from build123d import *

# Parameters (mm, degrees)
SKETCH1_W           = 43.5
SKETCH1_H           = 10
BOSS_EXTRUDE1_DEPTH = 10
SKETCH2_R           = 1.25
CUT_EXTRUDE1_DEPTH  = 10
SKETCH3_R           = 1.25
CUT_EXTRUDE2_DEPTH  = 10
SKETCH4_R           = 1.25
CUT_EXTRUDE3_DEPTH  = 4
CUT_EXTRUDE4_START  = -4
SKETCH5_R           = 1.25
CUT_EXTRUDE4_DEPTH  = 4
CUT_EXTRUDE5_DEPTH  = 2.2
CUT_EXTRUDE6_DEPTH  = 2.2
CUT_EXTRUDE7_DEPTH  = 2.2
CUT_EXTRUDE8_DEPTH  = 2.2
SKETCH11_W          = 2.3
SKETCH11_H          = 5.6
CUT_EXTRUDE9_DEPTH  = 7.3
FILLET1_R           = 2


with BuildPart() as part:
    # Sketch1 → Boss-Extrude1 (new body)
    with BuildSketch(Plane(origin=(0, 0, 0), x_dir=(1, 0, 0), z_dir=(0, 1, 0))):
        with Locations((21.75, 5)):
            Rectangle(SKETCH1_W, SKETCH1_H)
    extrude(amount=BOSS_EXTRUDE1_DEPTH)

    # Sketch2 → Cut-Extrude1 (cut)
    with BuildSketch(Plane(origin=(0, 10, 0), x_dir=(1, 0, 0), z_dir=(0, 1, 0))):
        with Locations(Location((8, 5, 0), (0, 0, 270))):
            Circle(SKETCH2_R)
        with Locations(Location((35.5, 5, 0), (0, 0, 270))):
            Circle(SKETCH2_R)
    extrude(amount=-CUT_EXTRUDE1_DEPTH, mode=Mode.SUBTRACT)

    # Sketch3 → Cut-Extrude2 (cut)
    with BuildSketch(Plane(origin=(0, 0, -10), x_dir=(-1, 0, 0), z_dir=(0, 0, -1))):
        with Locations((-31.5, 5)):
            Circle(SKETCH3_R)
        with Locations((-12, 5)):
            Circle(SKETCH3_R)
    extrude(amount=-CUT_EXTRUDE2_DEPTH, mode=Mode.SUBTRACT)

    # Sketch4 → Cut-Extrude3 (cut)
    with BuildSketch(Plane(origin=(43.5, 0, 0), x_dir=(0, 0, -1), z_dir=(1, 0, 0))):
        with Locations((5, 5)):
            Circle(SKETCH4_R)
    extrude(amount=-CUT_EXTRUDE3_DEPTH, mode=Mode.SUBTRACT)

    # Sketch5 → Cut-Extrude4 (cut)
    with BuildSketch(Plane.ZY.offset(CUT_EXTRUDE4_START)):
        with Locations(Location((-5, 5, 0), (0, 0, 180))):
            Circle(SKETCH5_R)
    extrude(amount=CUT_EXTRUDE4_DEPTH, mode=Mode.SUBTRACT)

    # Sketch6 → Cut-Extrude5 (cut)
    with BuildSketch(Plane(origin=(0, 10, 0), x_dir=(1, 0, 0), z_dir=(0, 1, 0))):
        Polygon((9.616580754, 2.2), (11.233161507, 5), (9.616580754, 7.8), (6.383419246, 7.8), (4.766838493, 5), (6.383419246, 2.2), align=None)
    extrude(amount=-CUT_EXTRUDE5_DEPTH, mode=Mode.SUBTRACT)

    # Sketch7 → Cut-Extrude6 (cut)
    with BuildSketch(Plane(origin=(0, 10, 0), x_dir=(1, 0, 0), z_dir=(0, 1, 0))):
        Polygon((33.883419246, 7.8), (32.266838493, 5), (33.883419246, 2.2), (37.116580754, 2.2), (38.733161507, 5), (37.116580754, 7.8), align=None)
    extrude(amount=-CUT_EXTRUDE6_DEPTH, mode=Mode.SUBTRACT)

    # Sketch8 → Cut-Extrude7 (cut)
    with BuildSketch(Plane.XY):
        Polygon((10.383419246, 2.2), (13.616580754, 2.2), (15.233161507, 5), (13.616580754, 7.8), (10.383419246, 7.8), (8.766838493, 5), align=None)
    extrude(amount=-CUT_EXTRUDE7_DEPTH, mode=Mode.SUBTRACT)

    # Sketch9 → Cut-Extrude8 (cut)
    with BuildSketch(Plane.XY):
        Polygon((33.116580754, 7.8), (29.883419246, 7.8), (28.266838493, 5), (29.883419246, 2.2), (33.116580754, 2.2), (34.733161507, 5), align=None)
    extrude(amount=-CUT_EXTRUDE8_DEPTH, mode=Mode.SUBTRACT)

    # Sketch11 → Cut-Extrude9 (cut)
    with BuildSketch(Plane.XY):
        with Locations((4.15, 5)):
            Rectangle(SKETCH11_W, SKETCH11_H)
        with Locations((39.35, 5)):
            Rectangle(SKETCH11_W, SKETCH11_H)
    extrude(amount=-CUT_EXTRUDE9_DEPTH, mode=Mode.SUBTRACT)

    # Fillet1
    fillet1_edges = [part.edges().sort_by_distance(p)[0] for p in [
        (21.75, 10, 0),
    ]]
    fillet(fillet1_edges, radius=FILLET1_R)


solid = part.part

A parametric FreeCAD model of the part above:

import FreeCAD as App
import Part
import Sketcher
from FreeCAD import Vector
Q = App.Units.Quantity


def edges_at(feature, points):
    """Names of the edges that pass closest to the given points."""
    edges = feature.Shape.Edges
    near = lambda p: min(range(len(edges)), key=lambda i: edges[i].distToShape(Part.Vertex(*p))[0])
    return sorted({f"Edge{near(p) + 1}" for p in points})

doc = App.newDocument("Part")
body = doc.addObject("PartDesign::Body", "Body")

# Sketch on XZ plane
sketch1 = body.newObject("Sketcher::SketchObject", "Sketch")
sketch1.AttachmentSupport = (doc.getObject("XZ_Plane"), [""])
sketch1.MapMode = "FlatFace"
sketch1.addGeometry(Part.LineSegment(Vector(0, -10, 0), Vector(0, 0, 0)), False)
sketch1.addGeometry(Part.LineSegment(Vector(0, 0, 0), Vector(44, 0, 0)), False)
sketch1.addGeometry(Part.LineSegment(Vector(44, 0, 0), Vector(44, -10, 0)), False)
sketch1.addGeometry(Part.LineSegment(Vector(44, -10, 0), Vector(0, -10, 0)), False)
sketch1.addConstraint(Sketcher.Constraint("Coincident", 0, 2, 1, 1))
sketch1.addConstraint(Sketcher.Constraint("Coincident", 1, 2, 2, 1))
sketch1.addConstraint(Sketcher.Constraint("Coincident", 2, 2, 3, 1))
sketch1.addConstraint(Sketcher.Constraint("Coincident", 3, 2, 0, 1))
sketch1.addConstraint(Sketcher.Constraint("Vertical", 0))
sketch1.addConstraint(Sketcher.Constraint("Horizontal", 1))
sketch1.addConstraint(Sketcher.Constraint("Vertical", 2))
sketch1.addConstraint(Sketcher.Constraint("Horizontal", 3))
sketch1.addConstraint(Sketcher.Constraint("Coincident", 0, 2, -1, 1))
sketch1.addConstraint(Sketcher.Constraint("DistanceY", 0, 1, 0, 2, 10.0))
sketch1.addConstraint(Sketcher.Constraint("DistanceX", 1, 1, 1, 2, 43.5))
pad1 = body.newObject("PartDesign::Pad", "Pad")
pad1.Profile = sketch1
pad1.Length = 10
pad1.Reversed = True

# Sketch on XZ plane
sketch2 = body.newObject("Sketcher::SketchObject", "Sketch001")
sketch2.AttachmentSupport = (doc.getObject("XZ_Plane"), [""])
sketch2.MapMode = "FlatFace"
sketch2.AttachmentOffset = App.Placement(Vector(0, 0, -10), App.Rotation())
sketch2.addGeometry(Part.Circle(Vector(8, -5, 0), Vector(0, 0, 1), 1.2), False)
sketch2.addGeometry(Part.Circle(Vector(35.5, -5, 0), Vector(0, 0, 1), 1.2), False)
sketch2.addConstraint(Sketcher.Constraint("Equal", 0, 1))
sketch2.addConstraint(Sketcher.Constraint("Horizontal", 0, 3, 1, 3))
sketch2.addConstraint(Sketcher.Constraint("Diameter", 0, 2.5))
sketch2.addConstraint(Sketcher.Constraint("DistanceX", -1, 1, 0, 3, 8.0))
sketch2.addConstraint(Sketcher.Constraint("DistanceY", 0, 3, -1, 1, 5.0))
sketch2.addConstraint(Sketcher.Constraint("DistanceX", -1, 1, 1, 3, 35.5))
pocket1 = body.newObject("PartDesign::Pocket", "Pocket")
pocket1.Profile = sketch2
pocket1.Length = 10
pocket1.Reversed = True

# Sketch on XY plane
sketch3 = body.newObject("Sketcher::SketchObject", "Sketch002")
sketch3.AttachmentSupport = (doc.getObject("XY_Plane"), [""])
sketch3.MapMode = "FlatFace"
sketch3.AttachmentOffset = App.Placement(Vector(0, 0, -10), App.Rotation())
sketch3.addGeometry(Part.Circle(Vector(31.5, 5, 0), Vector(0, 0, 1), 1.2), False)
sketch3.addGeometry(Part.Circle(Vector(12, 5, 0), Vector(0, 0, 1), 1.2), False)
sketch3.addConstraint(Sketcher.Constraint("Equal", 0, 1))
sketch3.addConstraint(Sketcher.Constraint("Horizontal", 0, 3, 1, 3))
sketch3.addConstraint(Sketcher.Constraint("Diameter", 0, 2.5))
sketch3.addConstraint(Sketcher.Constraint("DistanceY", -1, 1, 0, 3, 5.0))
sketch3.addConstraint(Sketcher.Constraint("DistanceX", -1, 1, 1, 3, 12.0))
sketch3.addConstraint(Sketcher.Constraint("DistanceX", -1, 1, 0, 3, 31.5))
pocket2 = body.newObject("PartDesign::Pocket", "Pocket001")
pocket2.Profile = sketch3
pocket2.Length = 10
pocket2.Reversed = True

# Sketch on YZ plane
sketch4 = body.newObject("Sketcher::SketchObject", "Sketch003")
sketch4.AttachmentSupport = (doc.getObject("YZ_Plane"), [""])
sketch4.MapMode = "FlatFace"
sketch4.AttachmentOffset = App.Placement(Vector(0, 0, 43.5), App.Rotation())
sketch4.addGeometry(Part.Circle(Vector(5, -5, 0), Vector(0, 0, 1), 1.2), False)
sketch4.addConstraint(Sketcher.Constraint("Diameter", 0, 2.5))
sketch4.addConstraint(Sketcher.Constraint("DistanceX", -1, 1, 0, 3, 5.0))
sketch4.addConstraint(Sketcher.Constraint("DistanceY", 0, 3, -1, 1, 5.0))
pocket3 = body.newObject("PartDesign::Pocket", "Pocket002")
pocket3.Profile = sketch4
pocket3.Length = 4

# Sketch on YZ plane
sketch5 = body.newObject("Sketcher::SketchObject", "Sketch004")
sketch5.AttachmentSupport = (doc.getObject("YZ_Plane"), [""])
sketch5.MapMode = "FlatFace"
sketch5.AttachmentOffset = App.Placement(Vector(0, 0, 4), App.Rotation())
sketch5.addGeometry(Part.Circle(Vector(5, -5, 0), Vector(0, 0, 1), 1.2), False)
sketch5.addConstraint(Sketcher.Constraint("Diameter", 0, 2.5))
sketch5.addConstraint(Sketcher.Constraint("DistanceX", -1, 1, 0, 3, 5.0))
sketch5.addConstraint(Sketcher.Constraint("DistanceY", 0, 3, -1, 1, 5.0))
pocket4 = body.newObject("PartDesign::Pocket", "Pocket003")
pocket4.Profile = sketch5
pocket4.Length = 4

# Sketch on XZ plane
sketch6 = body.newObject("Sketcher::SketchObject", "Sketch005")
sketch6.AttachmentSupport = (doc.getObject("XZ_Plane"), [""])
sketch6.MapMode = "FlatFace"
sketch6.AttachmentOffset = App.Placement(Vector(0, 0, -10), App.Rotation())
sketch6.addGeometry(Part.LineSegment(Vector(9.6, -2.2, 0), Vector(11.2, -5, 0)), False)
sketch6.addGeometry(Part.LineSegment(Vector(11.2, -5, 0), Vector(9.6, -7.8, 0)), False)
sketch6.addGeometry(Part.LineSegment(Vector(9.6, -7.8, 0), Vector(6.4, -7.8, 0)), False)
sketch6.addGeometry(Part.LineSegment(Vector(6.4, -7.8, 0), Vector(4.8, -5, 0)), False)
sketch6.addGeometry(Part.LineSegment(Vector(4.8, -5, 0), Vector(6.4, -2.2, 0)), False)
sketch6.addGeometry(Part.LineSegment(Vector(6.4, -2.2, 0), Vector(9.6, -2.2, 0)), False)
sketch6.addConstraint(Sketcher.Constraint("Coincident", 0, 2, 1, 1))
sketch6.addConstraint(Sketcher.Constraint("Coincident", 1, 2, 2, 1))
sketch6.addConstraint(Sketcher.Constraint("Coincident", 2, 2, 3, 1))
sketch6.addConstraint(Sketcher.Constraint("Coincident", 3, 2, 4, 1))
sketch6.addConstraint(Sketcher.Constraint("Coincident", 4, 2, 5, 1))
sketch6.addConstraint(Sketcher.Constraint("Coincident", 5, 2, 0, 1))
sketch6.addConstraint(Sketcher.Constraint("Horizontal", 2))
sketch6.addConstraint(Sketcher.Constraint("Horizontal", 5))
sketch6.addConstraint(Sketcher.Constraint("Parallel", 0, 3))
sketch6.addConstraint(Sketcher.Constraint("Parallel", 1, 4))
sketch6.addConstraint(Sketcher.Constraint("Horizontal", 0, 2, 3, 2))
sketch6.addConstraint(Sketcher.Constraint("Vertical", 2, 2, 4, 2))
sketch6.addConstraint(Sketcher.Constraint("Vertical", 1, 2, 5, 2))
sketch6.addConstraint(Sketcher.Constraint("Angle", 0, Q("-60 deg")))
sketch6.addConstraint(Sketcher.Constraint("DistanceY", 0, 2, -1, 1, 5.0))
sketch6.addConstraint(Sketcher.Constraint("DistanceY", 1, 2, -1, 1, 7.8))
sketch6.addConstraint(Sketcher.Constraint("DistanceX", 2, 2, 2, 1, 3.233162))
sketch6.addConstraint(Sketcher.Constraint("DistanceX", -1, 1, 0, 2, 11.233162))
pocket5 = body.newObject("PartDesign::Pocket", "Pocket004")
pocket5.Profile = sketch6
pocket5.Length = 2.2
pocket5.Reversed = True

# Sketch on XZ plane
sketch7 = body.newObject("Sketcher::SketchObject", "Sketch006")
sketch7.AttachmentSupport = (doc.getObject("XZ_Plane"), [""])
sketch7.MapMode = "FlatFace"
sketch7.AttachmentOffset = App.Placement(Vector(0, 0, -10), App.Rotation())
sketch7.addGeometry(Part.LineSegment(Vector(33.9, -7.8, 0), Vector(32.3, -5, 0)), False)
sketch7.addGeometry(Part.LineSegment(Vector(32.3, -5, 0), Vector(33.9, -2.2, 0)), False)
sketch7.addGeometry(Part.LineSegment(Vector(33.9, -2.2, 0), Vector(37.1, -2.2, 0)), False)
sketch7.addGeometry(Part.LineSegment(Vector(37.1, -2.2, 0), Vector(38.7, -5, 0)), False)
sketch7.addGeometry(Part.LineSegment(Vector(38.7, -5, 0), Vector(37.1, -7.8, 0)), False)
sketch7.addGeometry(Part.LineSegment(Vector(37.1, -7.8, 0), Vector(33.9, -7.8, 0)), False)
sketch7.addConstraint(Sketcher.Constraint("Coincident", 0, 2, 1, 1))
sketch7.addConstraint(Sketcher.Constraint("Coincident", 1, 2, 2, 1))
sketch7.addConstraint(Sketcher.Constraint("Coincident", 2, 2, 3, 1))
sketch7.addConstraint(Sketcher.Constraint("Coincident", 3, 2, 4, 1))
sketch7.addConstraint(Sketcher.Constraint("Coincident", 4, 2, 5, 1))
sketch7.addConstraint(Sketcher.Constraint("Coincident", 5, 2, 0, 1))
sketch7.addConstraint(Sketcher.Constraint("Horizontal", 2))
sketch7.addConstraint(Sketcher.Constraint("Horizontal", 5))
sketch7.addConstraint(Sketcher.Constraint("Parallel", 0, 3))
sketch7.addConstraint(Sketcher.Constraint("Parallel", 1, 4))
sketch7.addConstraint(Sketcher.Constraint("Horizontal", 0, 2, 3, 2))
sketch7.addConstraint(Sketcher.Constraint("Vertical", 2, 2, 4, 2))
sketch7.addConstraint(Sketcher.Constraint("Vertical", 1, 2, 5, 2))
sketch7.addConstraint(Sketcher.Constraint("Angle", 0, Q("120 deg")))
sketch7.addConstraint(Sketcher.Constraint("DistanceY", 0, 2, -1, 1, 5.0))
sketch7.addConstraint(Sketcher.Constraint("DistanceY", 1, 2, -1, 1, 2.2))
sketch7.addConstraint(Sketcher.Constraint("DistanceX", 2, 1, 2, 2, 3.233162))
sketch7.addConstraint(Sketcher.Constraint("DistanceX", -1, 1, 0, 2, 32.266838))
pocket6 = body.newObject("PartDesign::Pocket", "Pocket005")
pocket6.Profile = sketch7
pocket6.Length = 2.2
pocket6.Reversed = True

# Sketch on XY plane
sketch8 = body.newObject("Sketcher::SketchObject", "Sketch007")
sketch8.AttachmentSupport = (doc.getObject("XY_Plane"), [""])
sketch8.MapMode = "FlatFace"
sketch8.addGeometry(Part.LineSegment(Vector(10.4, 2.2, 0), Vector(13.6, 2.2, 0)), False)
sketch8.addGeometry(Part.LineSegment(Vector(13.6, 2.2, 0), Vector(15.2, 5, 0)), False)
sketch8.addGeometry(Part.LineSegment(Vector(15.2, 5, 0), Vector(13.6, 7.8, 0)), False)
sketch8.addGeometry(Part.LineSegment(Vector(13.6, 7.8, 0), Vector(10.4, 7.8, 0)), False)
sketch8.addGeometry(Part.LineSegment(Vector(10.4, 7.8, 0), Vector(8.8, 5, 0)), False)
sketch8.addGeometry(Part.LineSegment(Vector(8.8, 5, 0), Vector(10.4, 2.2, 0)), False)
sketch8.addConstraint(Sketcher.Constraint("Coincident", 0, 2, 1, 1))
sketch8.addConstraint(Sketcher.Constraint("Coincident", 1, 2, 2, 1))
sketch8.addConstraint(Sketcher.Constraint("Coincident", 2, 2, 3, 1))
sketch8.addConstraint(Sketcher.Constraint("Coincident", 3, 2, 4, 1))
sketch8.addConstraint(Sketcher.Constraint("Coincident", 4, 2, 5, 1))
sketch8.addConstraint(Sketcher.Constraint("Coincident", 5, 2, 0, 1))
sketch8.addConstraint(Sketcher.Constraint("Horizontal", 0))
sketch8.addConstraint(Sketcher.Constraint("Horizontal", 3))
sketch8.addConstraint(Sketcher.Constraint("Parallel", 1, 4))
sketch8.addConstraint(Sketcher.Constraint("Parallel", 2, 5))
sketch8.addConstraint(Sketcher.Constraint("Horizontal", 1, 2, 4, 2))
sketch8.addConstraint(Sketcher.Constraint("Vertical", 0, 2, 2, 2))
sketch8.addConstraint(Sketcher.Constraint("Vertical", 3, 2, 5, 2))
sketch8.addConstraint(Sketcher.Constraint("Angle", 1, Q("60 deg")))
sketch8.addConstraint(Sketcher.Constraint("DistanceY", -1, 1, 1, 2, 5.0))
sketch8.addConstraint(Sketcher.Constraint("DistanceY", -1, 1, 0, 2, 2.2))
sketch8.addConstraint(Sketcher.Constraint("DistanceX", 0, 1, 0, 2, 3.233162))
sketch8.addConstraint(Sketcher.Constraint("DistanceX", -1, 1, 0, 2, 13.616581))
pocket7 = body.newObject("PartDesign::Pocket", "Pocket006")
pocket7.Profile = sketch8
pocket7.Length = 2.2

# Sketch on XY plane
sketch9 = body.newObject("Sketcher::SketchObject", "Sketch008")
sketch9.AttachmentSupport = (doc.getObject("XY_Plane"), [""])
sketch9.MapMode = "FlatFace"
sketch9.addGeometry(Part.LineSegment(Vector(33.1, 7.8, 0), Vector(29.9, 7.8, 0)), False)
sketch9.addGeometry(Part.LineSegment(Vector(29.9, 7.8, 0), Vector(28.3, 5, 0)), False)
sketch9.addGeometry(Part.LineSegment(Vector(28.3, 5, 0), Vector(29.9, 2.2, 0)), False)
sketch9.addGeometry(Part.LineSegment(Vector(29.9, 2.2, 0), Vector(33.1, 2.2, 0)), False)
sketch9.addGeometry(Part.LineSegment(Vector(33.1, 2.2, 0), Vector(34.7, 5, 0)), False)
sketch9.addGeometry(Part.LineSegment(Vector(34.7, 5, 0), Vector(33.1, 7.8, 0)), False)
sketch9.addConstraint(Sketcher.Constraint("Coincident", 0, 2, 1, 1))
sketch9.addConstraint(Sketcher.Constraint("Coincident", 1, 2, 2, 1))
sketch9.addConstraint(Sketcher.Constraint("Coincident", 2, 2, 3, 1))
sketch9.addConstraint(Sketcher.Constraint("Coincident", 3, 2, 4, 1))
sketch9.addConstraint(Sketcher.Constraint("Coincident", 4, 2, 5, 1))
sketch9.addConstraint(Sketcher.Constraint("Coincident", 5, 2, 0, 1))
sketch9.addConstraint(Sketcher.Constraint("Horizontal", 0))
sketch9.addConstraint(Sketcher.Constraint("Horizontal", 3))
sketch9.addConstraint(Sketcher.Constraint("Parallel", 1, 4))
sketch9.addConstraint(Sketcher.Constraint("Parallel", 2, 5))
sketch9.addConstraint(Sketcher.Constraint("Horizontal", 1, 2, 4, 2))
sketch9.addConstraint(Sketcher.Constraint("Vertical", 0, 2, 2, 2))
sketch9.addConstraint(Sketcher.Constraint("Vertical", 3, 2, 5, 2))
sketch9.addConstraint(Sketcher.Constraint("Angle", 1, Q("-120 deg")))
sketch9.addConstraint(Sketcher.Constraint("DistanceY", -1, 1, 1, 2, 5.0))
sketch9.addConstraint(Sketcher.Constraint("DistanceY", -1, 1, 0, 2, 7.8))
sketch9.addConstraint(Sketcher.Constraint("DistanceX", 0, 2, 0, 1, 3.233162))
sketch9.addConstraint(Sketcher.Constraint("DistanceX", -1, 1, 0, 2, 29.883419))
pocket8 = body.newObject("PartDesign::Pocket", "Pocket007")
pocket8.Profile = sketch9
pocket8.Length = 2.2

# Sketch on XY plane
sketch10 = body.newObject("Sketcher::SketchObject", "Sketch009")
sketch10.AttachmentSupport = (doc.getObject("XY_Plane"), [""])
sketch10.MapMode = "FlatFace"
sketch10.addGeometry(Part.LineSegment(Vector(3, 7.8, 0), Vector(3, 2.2, 0)), False)
sketch10.addGeometry(Part.LineSegment(Vector(3, 2.2, 0), Vector(5.3, 2.2, 0)), False)
sketch10.addGeometry(Part.LineSegment(Vector(5.3, 2.2, 0), Vector(5.3, 7.8, 0)), False)
sketch10.addGeometry(Part.LineSegment(Vector(5.3, 7.8, 0), Vector(3, 7.8, 0)), False)
sketch10.addGeometry(Part.LineSegment(Vector(38.2, 7.8, 0), Vector(38.2, 2.2, 0)), False)
sketch10.addGeometry(Part.LineSegment(Vector(38.2, 2.2, 0), Vector(40.5, 2.2, 0)), False)
sketch10.addGeometry(Part.LineSegment(Vector(40.5, 2.2, 0), Vector(40.5, 7.8, 0)), False)
sketch10.addGeometry(Part.LineSegment(Vector(40.5, 7.8, 0), Vector(38.2, 7.8, 0)), False)
sketch10.addConstraint(Sketcher.Constraint("Coincident", 0, 2, 1, 1))
sketch10.addConstraint(Sketcher.Constraint("Coincident", 1, 2, 2, 1))
sketch10.addConstraint(Sketcher.Constraint("Coincident", 2, 2, 3, 1))
sketch10.addConstraint(Sketcher.Constraint("Coincident", 3, 2, 0, 1))
sketch10.addConstraint(Sketcher.Constraint("Coincident", 4, 2, 5, 1))
sketch10.addConstraint(Sketcher.Constraint("Coincident", 5, 2, 6, 1))
sketch10.addConstraint(Sketcher.Constraint("Coincident", 6, 2, 7, 1))
sketch10.addConstraint(Sketcher.Constraint("Coincident", 7, 2, 4, 1))
sketch10.addConstraint(Sketcher.Constraint("Vertical", 0))
sketch10.addConstraint(Sketcher.Constraint("Horizontal", 1))
sketch10.addConstraint(Sketcher.Constraint("Vertical", 2))
sketch10.addConstraint(Sketcher.Constraint("Horizontal", 3))
sketch10.addConstraint(Sketcher.Constraint("Vertical", 4))
sketch10.addConstraint(Sketcher.Constraint("Horizontal", 5))
sketch10.addConstraint(Sketcher.Constraint("Vertical", 6))
sketch10.addConstraint(Sketcher.Constraint("Horizontal", 7))
sketch10.addConstraint(Sketcher.Constraint("Horizontal", 1, 2, 4, 2))
sketch10.addConstraint(Sketcher.Constraint("Horizontal", 3, 2, 6, 2))
sketch10.addConstraint(Sketcher.Constraint("Equal", 3, 5))
sketch10.addConstraint(Sketcher.Constraint("DistanceX", 1, 1, 1, 2, 2.3))
sketch10.addConstraint(Sketcher.Constraint("DistanceY", 0, 2, 0, 1, 5.6))
sketch10.addConstraint(Sketcher.Constraint("DistanceX", -1, 1, 0, 2, 3.0))
sketch10.addConstraint(Sketcher.Constraint("DistanceY", -1, 1, 0, 2, 2.2))
sketch10.addConstraint(Sketcher.Constraint("DistanceX", -1, 1, 4, 2, 38.2))
pocket9 = body.newObject("PartDesign::Pocket", "Pocket008")
pocket9.Profile = sketch10
pocket9.Length = 7.3
doc.recompute()

fillet = body.newObject("PartDesign::Fillet", "Fillet")
fillet.Base = (pocket9, edges_at(pocket9, [(21.75, 10, 0)]))
fillet.Radius = 2

doc.recompute()
